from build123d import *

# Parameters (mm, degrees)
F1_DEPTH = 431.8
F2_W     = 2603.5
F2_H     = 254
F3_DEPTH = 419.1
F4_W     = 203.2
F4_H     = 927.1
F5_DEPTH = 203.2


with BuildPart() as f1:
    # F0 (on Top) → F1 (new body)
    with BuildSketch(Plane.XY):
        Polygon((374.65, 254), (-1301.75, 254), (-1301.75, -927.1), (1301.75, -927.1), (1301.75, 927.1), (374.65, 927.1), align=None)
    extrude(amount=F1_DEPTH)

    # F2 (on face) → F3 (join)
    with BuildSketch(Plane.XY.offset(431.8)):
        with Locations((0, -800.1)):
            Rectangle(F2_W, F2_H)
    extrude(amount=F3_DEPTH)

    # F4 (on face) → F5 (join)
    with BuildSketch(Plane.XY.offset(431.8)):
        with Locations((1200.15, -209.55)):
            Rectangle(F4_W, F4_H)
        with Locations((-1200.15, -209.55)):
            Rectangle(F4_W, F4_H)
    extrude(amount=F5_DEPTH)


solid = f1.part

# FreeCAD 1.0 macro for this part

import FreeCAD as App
import Part
import Sketcher
Q = App.Units.Quantity


def add_polygon(sketch, points):
    """Adds a closed chain of lines whose ends are joined by coincident constraints."""
    first, n = sketch.GeometryCount, len(points)
    for a, b in zip(points, points[1:] + points[:1]):
        sketch.addGeometry(Part.LineSegment(App.Vector(*a, 0), App.Vector(*b, 0)), False)
    for i in range(n):
        sketch.addConstraint(Sketcher.Constraint("Coincident", first + i, 2, first + (i + 1) % n, 1))

doc = App.newDocument("Part")
body = doc.addObject("PartDesign::Body", "Body")

# Sketch on XY plane
sketch1 = body.newObject("Sketcher::SketchObject", "Sketch")
sketch1.AttachmentSupport = (doc.getObject("XY_Plane"), [""])
sketch1.MapMode = "FlatFace"
add_polygon(sketch1, [(375, 254), (-1302, 254), (-1302, -927), (1302, -927), (1302, 927), (375, 927)])  # lines 0-5
sketch1.addConstraint(Sketcher.Constraint("Horizontal", 0))
sketch1.addConstraint(Sketcher.Constraint("Vertical", 1))
sketch1.addConstraint(Sketcher.Constraint("Horizontal", 2))
sketch1.addConstraint(Sketcher.Constraint("Vertical", 3))
sketch1.addConstraint(Sketcher.Constraint("Horizontal", 4))
sketch1.addConstraint(Sketcher.Constraint("Vertical", 5))
sketch1.addConstraint(Sketcher.Constraint("Symmetric", 1, 2, 3, 2, -1, 1))
sketch1.addConstraint(Sketcher.Constraint("DistanceX", 0, 2, 0, 1, Q("66 in")))
sketch1.addConstraint(Sketcher.Constraint("DistanceY", 3, 1, 3, 2, Q("73 in")))
sketch1.addConstraint(Sketcher.Constraint("DistanceX", 2, 1, 2, 2, Q("102.5 in")))
sketch1.addConstraint(Sketcher.Constraint("DistanceY", 1, 2, 1, 1, Q("46.5 in")))
pad1 = body.newObject("PartDesign::Pad", "Pad")
pad1.Profile = sketch1
pad1.Length = Q("17 in")

# Sketch on XY plane
sketch2 = body.newObject("Sketcher::SketchObject", "Sketch001")
sketch2.AttachmentSupport = (doc.getObject("XY_Plane"), [""])
sketch2.MapMode = "FlatFace"
sketch2.AttachmentOffset = App.Placement(App.Vector(0, 0, 17 * 25.4), App.Rotation())
add_polygon(sketch2, [(-1302, -673), (-1302, -927), (1302, -927), (1302, -673)])  # lines 0-3
sketch2.addConstraint(Sketcher.Constraint("Vertical", 0))
sketch2.addConstraint(Sketcher.Constraint("Horizontal", 1))
sketch2.addConstraint(Sketcher.Constraint("Vertical", 2))
sketch2.addConstraint(Sketcher.Constraint("Horizontal", 3))
sketch2.addConstraint(Sketcher.Constraint("DistanceY", 0, 2, 0, 1, Q("10 in")))
sketch2.addConstraint(Sketcher.Constraint("DistanceX", 1, 1, 1, 2, Q("102.5 in")))
sketch2.addConstraint(Sketcher.Constraint("DistanceY", 0, 2, -1, 1, Q("36.5 in")))
sketch2.addConstraint(Sketcher.Constraint("DistanceX", 0, 2, -1, 1, Q("51.25 in")))
pad2 = body.newObject("PartDesign::Pad", "Pad001")
pad2.Profile = sketch2
pad2.Length = Q("16.5 in")

# Sketch on XY plane
sketch3 = body.newObject("Sketcher::SketchObject", "Sketch002")
sketch3.AttachmentSupport = (doc.getObject("XY_Plane"), [""])
sketch3.MapMode = "FlatFace"
sketch3.AttachmentOffset = App.Placement(App.Vector(0, 0, 17 * 25.4), App.Rotation())
add_polygon(sketch3, [(1099, 254), (1099, -673), (1302, -673), (1302, 254)])  # lines 0-3
add_polygon(sketch3, [(-1302, 254), (-1302, -673), (-1099, -673), (-1099, 254)])  # lines 4-7
sketch3.addConstraint(Sketcher.Constraint("Vertical", 0))
sketch3.addConstraint(Sketcher.Constraint("Horizontal", 1))
sketch3.addConstraint(Sketcher.Constraint("Vertical", 2))
sketch3.addConstraint(Sketcher.Constraint("Horizontal", 3))
sketch3.addConstraint(Sketcher.Constraint("Vertical", 4))
sketch3.addConstraint(Sketcher.Constraint("Horizontal", 5))
sketch3.addConstraint(Sketcher.Constraint("Vertical", 6))
sketch3.addConstraint(Sketcher.Constraint("Horizontal", 7))
sketch3.addConstraint(Sketcher.Constraint("Symmetric", 1, 2, 4, 2, -2))
sketch3.addConstraint(Sketcher.Constraint("Symmetric", 3, 2, 6, 2, -2))
sketch3.addConstraint(Sketcher.Constraint("DistanceX", 1, 1, 1, 2, Q("8 in")))
sketch3.addConstraint(Sketcher.Constraint("DistanceY", 0, 2, 0, 1, Q("36.5 in")))
sketch3.addConstraint(Sketcher.Constraint("DistanceY", -1, 1, 2, 2, Q("10 in")))
sketch3.addConstraint(Sketcher.Constraint("DistanceX", 4, 2, 0, 2, Q("94.5 in")))
pad3 = body.newObject("PartDesign::Pad", "Pad002")
pad3.Profile = sketch3
pad3.Length = Q("8 in")

doc.recompute()
